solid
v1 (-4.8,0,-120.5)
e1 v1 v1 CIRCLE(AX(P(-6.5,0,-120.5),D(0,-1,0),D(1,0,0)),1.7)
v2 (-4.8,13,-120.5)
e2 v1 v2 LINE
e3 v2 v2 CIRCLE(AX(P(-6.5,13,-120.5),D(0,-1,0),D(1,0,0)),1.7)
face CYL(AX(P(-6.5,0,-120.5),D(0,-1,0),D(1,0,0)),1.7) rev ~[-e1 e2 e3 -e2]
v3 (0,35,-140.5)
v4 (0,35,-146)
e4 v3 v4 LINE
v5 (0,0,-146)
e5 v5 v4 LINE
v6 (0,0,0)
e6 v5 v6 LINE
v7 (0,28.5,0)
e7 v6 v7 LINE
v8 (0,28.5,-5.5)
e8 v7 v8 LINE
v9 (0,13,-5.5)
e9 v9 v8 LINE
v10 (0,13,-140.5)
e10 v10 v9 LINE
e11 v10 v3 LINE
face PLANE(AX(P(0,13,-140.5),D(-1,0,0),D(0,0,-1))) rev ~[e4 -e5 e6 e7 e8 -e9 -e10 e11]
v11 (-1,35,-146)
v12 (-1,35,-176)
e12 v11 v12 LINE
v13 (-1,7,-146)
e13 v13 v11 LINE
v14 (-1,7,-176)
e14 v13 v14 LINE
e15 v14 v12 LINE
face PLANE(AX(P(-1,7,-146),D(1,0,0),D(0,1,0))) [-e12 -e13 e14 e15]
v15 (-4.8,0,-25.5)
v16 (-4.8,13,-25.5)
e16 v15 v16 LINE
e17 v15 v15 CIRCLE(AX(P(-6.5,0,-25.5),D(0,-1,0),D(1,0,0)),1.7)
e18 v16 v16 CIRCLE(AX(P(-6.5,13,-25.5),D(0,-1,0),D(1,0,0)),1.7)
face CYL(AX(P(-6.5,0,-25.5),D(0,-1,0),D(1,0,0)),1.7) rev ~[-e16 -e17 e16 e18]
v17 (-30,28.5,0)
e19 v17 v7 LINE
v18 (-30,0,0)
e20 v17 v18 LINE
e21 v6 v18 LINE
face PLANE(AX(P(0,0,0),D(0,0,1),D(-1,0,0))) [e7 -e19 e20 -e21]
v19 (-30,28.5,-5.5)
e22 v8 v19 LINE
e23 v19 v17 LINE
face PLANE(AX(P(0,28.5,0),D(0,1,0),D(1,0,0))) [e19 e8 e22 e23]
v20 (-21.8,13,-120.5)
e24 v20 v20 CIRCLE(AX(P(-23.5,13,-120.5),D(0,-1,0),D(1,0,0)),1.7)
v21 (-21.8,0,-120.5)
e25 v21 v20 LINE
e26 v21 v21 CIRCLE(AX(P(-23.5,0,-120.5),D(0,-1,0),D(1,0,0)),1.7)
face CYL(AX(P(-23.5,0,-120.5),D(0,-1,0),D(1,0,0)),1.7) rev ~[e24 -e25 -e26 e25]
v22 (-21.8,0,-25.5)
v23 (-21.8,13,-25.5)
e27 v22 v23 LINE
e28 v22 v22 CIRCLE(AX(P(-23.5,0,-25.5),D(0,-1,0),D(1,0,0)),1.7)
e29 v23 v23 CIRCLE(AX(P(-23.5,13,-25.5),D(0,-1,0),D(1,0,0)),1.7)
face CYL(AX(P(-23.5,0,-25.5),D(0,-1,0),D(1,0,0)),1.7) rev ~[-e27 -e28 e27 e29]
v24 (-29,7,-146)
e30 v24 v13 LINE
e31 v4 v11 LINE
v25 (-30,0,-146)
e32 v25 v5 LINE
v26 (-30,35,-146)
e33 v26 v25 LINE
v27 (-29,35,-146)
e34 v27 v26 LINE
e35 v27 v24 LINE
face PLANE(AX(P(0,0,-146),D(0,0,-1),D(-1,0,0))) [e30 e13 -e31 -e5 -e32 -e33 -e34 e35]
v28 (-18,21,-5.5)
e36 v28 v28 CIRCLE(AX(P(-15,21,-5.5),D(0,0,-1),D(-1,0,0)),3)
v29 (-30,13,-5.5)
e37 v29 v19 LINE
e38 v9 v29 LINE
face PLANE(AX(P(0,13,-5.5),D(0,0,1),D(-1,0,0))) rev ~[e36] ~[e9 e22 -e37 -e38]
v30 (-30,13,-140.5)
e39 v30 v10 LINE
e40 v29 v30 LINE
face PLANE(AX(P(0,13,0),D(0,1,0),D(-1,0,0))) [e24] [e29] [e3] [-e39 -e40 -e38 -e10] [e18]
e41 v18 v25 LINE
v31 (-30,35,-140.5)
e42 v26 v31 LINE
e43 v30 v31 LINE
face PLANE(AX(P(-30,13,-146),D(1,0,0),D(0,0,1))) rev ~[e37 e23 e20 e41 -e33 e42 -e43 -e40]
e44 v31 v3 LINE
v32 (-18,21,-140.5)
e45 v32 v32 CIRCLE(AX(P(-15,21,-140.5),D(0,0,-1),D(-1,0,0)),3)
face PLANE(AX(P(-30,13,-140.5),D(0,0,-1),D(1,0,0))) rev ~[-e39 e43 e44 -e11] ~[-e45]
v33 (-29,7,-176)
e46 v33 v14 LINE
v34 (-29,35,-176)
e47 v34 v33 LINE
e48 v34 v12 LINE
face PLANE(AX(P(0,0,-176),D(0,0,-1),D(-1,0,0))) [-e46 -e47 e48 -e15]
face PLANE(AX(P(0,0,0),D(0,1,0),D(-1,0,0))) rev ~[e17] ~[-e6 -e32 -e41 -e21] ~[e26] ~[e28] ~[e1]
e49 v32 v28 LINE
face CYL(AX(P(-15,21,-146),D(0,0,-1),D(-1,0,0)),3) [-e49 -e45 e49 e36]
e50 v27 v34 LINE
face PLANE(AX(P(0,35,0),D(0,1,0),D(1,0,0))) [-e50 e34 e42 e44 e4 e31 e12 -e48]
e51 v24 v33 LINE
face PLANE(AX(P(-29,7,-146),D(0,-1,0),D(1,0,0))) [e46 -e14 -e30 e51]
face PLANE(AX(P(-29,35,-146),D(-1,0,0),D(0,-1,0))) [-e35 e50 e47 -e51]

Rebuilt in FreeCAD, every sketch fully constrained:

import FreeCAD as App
import Part
import Sketcher

V = App.Vector
Q = App.Units.Quantity

doc = App.newDocument("Part")
body = doc.addObject("PartDesign::Body", "Body")

# Sketch on XZ plane
sketch1 = body.newObject("Sketcher::SketchObject", "Sketch")
sketch1.AttachmentSupport = (doc.getObject("XZ_Plane"), [""])
sketch1.MapMode = "FlatFace"
sketch1.addGeometry(Part.LineSegment(V(-30, 0, 0), V(0, 0, 0)), False)
sketch1.addGeometry(Part.LineSegment(V(0, 0, 0), V(0, -146, 0)), False)
sketch1.addGeometry(Part.LineSegment(V(0, -146, 0), V(-30, -146, 0)), False)
sketch1.addGeometry(Part.LineSegment(V(-30, -146, 0), V(-30, 0, 0)), False)
sketch1.addConstraint(Sketcher.Constraint("Coincident", 0, 2, 1, 1))
sketch1.addConstraint(Sketcher.Constraint("Coincident", 1, 2, 2, 1))
sketch1.addConstraint(Sketcher.Constraint("Coincident", 2, 2, 3, 1))
sketch1.addConstraint(Sketcher.Constraint("Coincident", 3, 2, 0, 1))
sketch1.addConstraint(Sketcher.Constraint("Horizontal", 0))
sketch1.addConstraint(Sketcher.Constraint("Vertical", 1))
sketch1.addConstraint(Sketcher.Constraint("Horizontal", 2))
sketch1.addConstraint(Sketcher.Constraint("Vertical", 3))
sketch1.addConstraint(Sketcher.Constraint("Coincident", 0, 2, -1, 1))
sketch1.addConstraint(Sketcher.Constraint("DistanceX", 0, 1, 0, 2, Q("30 mm")))
sketch1.addConstraint(Sketcher.Constraint("DistanceY", 1, 2, 1, 1, Q("146 mm")))
pad1 = body.newObject("PartDesign::Pad", "Pad")
pad1.Profile = sketch1
pad1.Length = 13
pad1.Reversed = True

# Sketch on XZ plane
sketch2 = body.newObject("Sketcher::SketchObject", "Sketch001")
sketch2.AttachmentSupport = (doc.getObject("XZ_Plane"), [""])
sketch2.MapMode = "FlatFace"
sketch2.AttachmentOffset = App.Placement(V(0, 0, -13), App.Rotation())
sketch2.addGeometry(Part.LineSegment(V(0, -6, 0), V(-30, -6, 0)), False)
sketch2.addGeometry(Part.LineSegment(V(-30, -6, 0), V(-30, 0, 0)), False)
sketch2.addGeometry(Part.LineSegment(V(-30, 0, 0), V(0, 0, 0)), False)
sketch2.addGeometry(Part.LineSegment(V(0, 0, 0), V(0, -6, 0)), False)
sketch2.addConstraint(Sketcher.Constraint("Coincident", 0, 2, 1, 1))
sketch2.addConstraint(Sketcher.Constraint("Coincident", 1, 2, 2, 1))
sketch2.addConstraint(Sketcher.Constraint("Coincident", 2, 2, 3, 1))
sketch2.addConstraint(Sketcher.Constraint("Coincident", 3, 2, 0, 1))
sketch2.addConstraint(Sketcher.Constraint("Horizontal", 0))
sketch2.addConstraint(Sketcher.Constraint("Vertical", 1))
sketch2.addConstraint(Sketcher.Constraint("Horizontal", 2))
sketch2.addConstraint(Sketcher.Constraint("Vertical", 3))
sketch2.addConstraint(Sketcher.Constraint("Coincident", 2, 2, -1, 1))
sketch2.addConstraint(Sketcher.Constraint("DistanceY", 1, 1, 1, 2, Q("5.5 mm")))
sketch2.addConstraint(Sketcher.Constraint("DistanceX", 0, 2, 0, 1, Q("30 mm")))
pad2 = body.newObject("PartDesign::Pad", "Pad001")
pad2.Profile = sketch2
pad2.Length = 15.5
pad2.Reversed = True

# Sketch on XZ plane
sketch3 = body.newObject("Sketcher::SketchObject", "Sketch002")
sketch3.AttachmentSupport = (doc.getObject("XZ_Plane"), [""])
sketch3.MapMode = "FlatFace"
sketch3.AttachmentOffset = App.Placement(V(0, 0, -13), App.Rotation())
sketch3.addGeometry(Part.LineSegment(V(-30, -140, 0), V(0, -140, 0)), False)
sketch3.addGeometry(Part.LineSegment(V(0, -140, 0), V(0, -146, 0)), False)
sketch3.addGeometry(Part.LineSegment(V(0, -146, 0), V(-30, -146, 0)), False)
sketch3.addGeometry(Part.LineSegment(V(-30, -146, 0), V(-30, -140, 0)), False)
sketch3.addConstraint(Sketcher.Constraint("Coincident", 0, 2, 1, 1))
sketch3.addConstraint(Sketcher.Constraint("Coincident", 1, 2, 2, 1))
sketch3.addConstraint(Sketcher.Constraint("Coincident", 2, 2, 3, 1))
sketch3.addConstraint(Sketcher.Constraint("Coincident", 3, 2, 0, 1))
sketch3.addConstraint(Sketcher.Constraint("Horizontal", 0))
sketch3.addConstraint(Sketcher.Constraint("Vertical", 1))
sketch3.addConstraint(Sketcher.Constraint("Horizontal", 2))
sketch3.addConstraint(Sketcher.Constraint("Vertical", 3))
sketch3.addConstraint(Sketcher.Constraint("PointOnObject", 0, 2, -2))
sketch3.addConstraint(Sketcher.Constraint("DistanceY", 1, 2, 1, 1, Q("5.5 mm")))
sketch3.addConstraint(Sketcher.Constraint("DistanceX", 0, 1, 0, 2, Q("30 mm")))
sketch3.addConstraint(Sketcher.Constraint("DistanceY", 1, 2, -1, 1, Q("146 mm")))
pad3 = body.newObject("PartDesign::Pad", "Pad002")
pad3.Profile = sketch3
pad3.Length = 22
pad3.Reversed = True

# Sketch on XY plane
sketch4 = body.newObject("Sketcher::SketchObject", "Sketch003")
sketch4.AttachmentSupport = (doc.getObject("XY_Plane"), [""])
sketch4.MapMode = "FlatFace"
sketch4.AttachmentOffset = App.Placement(V(0, 0, -146), App.Rotation())
sketch4.addGeometry(Part.Circle(V(-15, 21, 0), V(0, 0, 1), 3), False)
sketch4.addConstraint(Sketcher.Constraint("Diameter", 0, Q("6 mm")))
sketch4.addConstraint(Sketcher.Constraint("DistanceX", 0, 3, -1, 1, Q("15 mm")))
sketch4.addConstraint(Sketcher.Constraint("DistanceY", -1, 1, 0, 3, Q("21 mm")))
pad4 = body.newObject("PartDesign::Pad", "Pad003")
pad4.Profile = sketch4
pad4.Length = 140.5

# Sketch on XY plane
sketch5 = body.newObject("Sketcher::SketchObject", "Sketch004")
sketch5.AttachmentSupport = (doc.getObject("XY_Plane"), [""])
sketch5.MapMode = "FlatFace"
sketch5.AttachmentOffset = App.Placement(V(0, 0, -146), App.Rotation())
sketch5.addGeometry(Part.LineSegment(V(-29, 7, 0), V(-29, 35, 0)), False)
sketch5.addGeometry(Part.LineSegment(V(-29, 35, 0), V(-1, 35, 0)), False)
sketch5.addGeometry(Part.LineSegment(V(-1, 35, 0), V(-1, 7, 0)), False)
sketch5.addGeometry(Part.LineSegment(V(-1, 7, 0), V(-29, 7, 0)), False)
sketch5.addConstraint(Sketcher.Constraint("Coincident", 0, 2, 1, 1))
sketch5.addConstraint(Sketcher.Constraint("Coincident", 1, 2, 2, 1))
sketch5.addConstraint(Sketcher.Constraint("Coincident", 2, 2, 3, 1))
sketch5.addConstraint(Sketcher.Constraint("Coincident", 3, 2, 0, 1))
sketch5.addConstraint(Sketcher.Constraint("Vertical", 0))
sketch5.addConstraint(Sketcher.Constraint("Horizontal", 1))
sketch5.addConstraint(Sketcher.Constraint("Vertical", 2))
sketch5.addConstraint(Sketcher.Constraint("Horizontal", 3))
sketch5.addConstraint(Sketcher.Constraint("Equal", 3, 0))
sketch5.addConstraint(Sketcher.Constraint("DistanceX", 1, 1, 1, 2, Q("28 mm")))
sketch5.addConstraint(Sketcher.Constraint("DistanceX", 0, 2, -1, 1, Q("29 mm")))
sketch5.addConstraint(Sketcher.Constraint("DistanceY", -1, 1, 0, 2, Q("35 mm")))
pad5 = body.newObject("PartDesign::Pad", "Pad004")
pad5.Profile = sketch5
pad5.Length = 30
pad5.Reversed = True

# Sketch on XZ plane
sketch6 = body.newObject("Sketcher::SketchObject", "Sketch005")
sketch6.AttachmentSupport = (doc.getObject("XZ_Plane"), [""])
sketch6.MapMode = "FlatFace"
sketch6.addGeometry(Part.Circle(V(-6.5, -120.5, 0), V(0, 0, 1), 1.7), False)
sketch6.addGeometry(Part.Circle(V(-23.5, -120.5, 0), V(0, 0, 1), 1.7), False)
sketch6.addGeometry(Part.Circle(V(-6.5, -25.5, 0), V(0, 0, 1), 1.7), False)
sketch6.addGeometry(Part.Circle(V(-23.5, -25.5, 0), V(0, 0, 1), 1.7), False)
sketch6.addConstraint(Sketcher.Constraint("Equal", 0, 1))
sketch6.addConstraint(Sketcher.Constraint("Equal", 1, 2))
sketch6.addConstraint(Sketcher.Constraint("Equal", 2, 3))
sketch6.addConstraint(Sketcher.Constraint("Horizontal", 0, 3, 1, 3))
sketch6.addConstraint(Sketcher.Constraint("Horizontal", 2, 3, 3, 3))
sketch6.addConstraint(Sketcher.Constraint("Vertical", 0, 3, 2, 3))
sketch6.addConstraint(Sketcher.Constraint("Vertical", 1, 3, 3, 3))
sketch6.addConstraint(Sketcher.Constraint("Diameter", 0, Q("3.4 mm")))
sketch6.addConstraint(Sketcher.Constraint("DistanceX", 1, 3, 0, 3, Q("17 mm")))
sketch6.addConstraint(Sketcher.Constraint("DistanceY", 0, 3, 2, 3, Q("95 mm")))
sketch6.addConstraint(Sketcher.Constraint("DistanceX", 0, 3, -1, 1, Q("6.5 mm")))
sketch6.addConstraint(Sketcher.Constraint("DistanceY", 2, 3, -1, 1, Q("25.5 mm")))
pocket1 = body.newObject("PartDesign::Pocket", "Pocket")
pocket1.Profile = sketch6
pocket1.Length = 30

doc.recompute()
